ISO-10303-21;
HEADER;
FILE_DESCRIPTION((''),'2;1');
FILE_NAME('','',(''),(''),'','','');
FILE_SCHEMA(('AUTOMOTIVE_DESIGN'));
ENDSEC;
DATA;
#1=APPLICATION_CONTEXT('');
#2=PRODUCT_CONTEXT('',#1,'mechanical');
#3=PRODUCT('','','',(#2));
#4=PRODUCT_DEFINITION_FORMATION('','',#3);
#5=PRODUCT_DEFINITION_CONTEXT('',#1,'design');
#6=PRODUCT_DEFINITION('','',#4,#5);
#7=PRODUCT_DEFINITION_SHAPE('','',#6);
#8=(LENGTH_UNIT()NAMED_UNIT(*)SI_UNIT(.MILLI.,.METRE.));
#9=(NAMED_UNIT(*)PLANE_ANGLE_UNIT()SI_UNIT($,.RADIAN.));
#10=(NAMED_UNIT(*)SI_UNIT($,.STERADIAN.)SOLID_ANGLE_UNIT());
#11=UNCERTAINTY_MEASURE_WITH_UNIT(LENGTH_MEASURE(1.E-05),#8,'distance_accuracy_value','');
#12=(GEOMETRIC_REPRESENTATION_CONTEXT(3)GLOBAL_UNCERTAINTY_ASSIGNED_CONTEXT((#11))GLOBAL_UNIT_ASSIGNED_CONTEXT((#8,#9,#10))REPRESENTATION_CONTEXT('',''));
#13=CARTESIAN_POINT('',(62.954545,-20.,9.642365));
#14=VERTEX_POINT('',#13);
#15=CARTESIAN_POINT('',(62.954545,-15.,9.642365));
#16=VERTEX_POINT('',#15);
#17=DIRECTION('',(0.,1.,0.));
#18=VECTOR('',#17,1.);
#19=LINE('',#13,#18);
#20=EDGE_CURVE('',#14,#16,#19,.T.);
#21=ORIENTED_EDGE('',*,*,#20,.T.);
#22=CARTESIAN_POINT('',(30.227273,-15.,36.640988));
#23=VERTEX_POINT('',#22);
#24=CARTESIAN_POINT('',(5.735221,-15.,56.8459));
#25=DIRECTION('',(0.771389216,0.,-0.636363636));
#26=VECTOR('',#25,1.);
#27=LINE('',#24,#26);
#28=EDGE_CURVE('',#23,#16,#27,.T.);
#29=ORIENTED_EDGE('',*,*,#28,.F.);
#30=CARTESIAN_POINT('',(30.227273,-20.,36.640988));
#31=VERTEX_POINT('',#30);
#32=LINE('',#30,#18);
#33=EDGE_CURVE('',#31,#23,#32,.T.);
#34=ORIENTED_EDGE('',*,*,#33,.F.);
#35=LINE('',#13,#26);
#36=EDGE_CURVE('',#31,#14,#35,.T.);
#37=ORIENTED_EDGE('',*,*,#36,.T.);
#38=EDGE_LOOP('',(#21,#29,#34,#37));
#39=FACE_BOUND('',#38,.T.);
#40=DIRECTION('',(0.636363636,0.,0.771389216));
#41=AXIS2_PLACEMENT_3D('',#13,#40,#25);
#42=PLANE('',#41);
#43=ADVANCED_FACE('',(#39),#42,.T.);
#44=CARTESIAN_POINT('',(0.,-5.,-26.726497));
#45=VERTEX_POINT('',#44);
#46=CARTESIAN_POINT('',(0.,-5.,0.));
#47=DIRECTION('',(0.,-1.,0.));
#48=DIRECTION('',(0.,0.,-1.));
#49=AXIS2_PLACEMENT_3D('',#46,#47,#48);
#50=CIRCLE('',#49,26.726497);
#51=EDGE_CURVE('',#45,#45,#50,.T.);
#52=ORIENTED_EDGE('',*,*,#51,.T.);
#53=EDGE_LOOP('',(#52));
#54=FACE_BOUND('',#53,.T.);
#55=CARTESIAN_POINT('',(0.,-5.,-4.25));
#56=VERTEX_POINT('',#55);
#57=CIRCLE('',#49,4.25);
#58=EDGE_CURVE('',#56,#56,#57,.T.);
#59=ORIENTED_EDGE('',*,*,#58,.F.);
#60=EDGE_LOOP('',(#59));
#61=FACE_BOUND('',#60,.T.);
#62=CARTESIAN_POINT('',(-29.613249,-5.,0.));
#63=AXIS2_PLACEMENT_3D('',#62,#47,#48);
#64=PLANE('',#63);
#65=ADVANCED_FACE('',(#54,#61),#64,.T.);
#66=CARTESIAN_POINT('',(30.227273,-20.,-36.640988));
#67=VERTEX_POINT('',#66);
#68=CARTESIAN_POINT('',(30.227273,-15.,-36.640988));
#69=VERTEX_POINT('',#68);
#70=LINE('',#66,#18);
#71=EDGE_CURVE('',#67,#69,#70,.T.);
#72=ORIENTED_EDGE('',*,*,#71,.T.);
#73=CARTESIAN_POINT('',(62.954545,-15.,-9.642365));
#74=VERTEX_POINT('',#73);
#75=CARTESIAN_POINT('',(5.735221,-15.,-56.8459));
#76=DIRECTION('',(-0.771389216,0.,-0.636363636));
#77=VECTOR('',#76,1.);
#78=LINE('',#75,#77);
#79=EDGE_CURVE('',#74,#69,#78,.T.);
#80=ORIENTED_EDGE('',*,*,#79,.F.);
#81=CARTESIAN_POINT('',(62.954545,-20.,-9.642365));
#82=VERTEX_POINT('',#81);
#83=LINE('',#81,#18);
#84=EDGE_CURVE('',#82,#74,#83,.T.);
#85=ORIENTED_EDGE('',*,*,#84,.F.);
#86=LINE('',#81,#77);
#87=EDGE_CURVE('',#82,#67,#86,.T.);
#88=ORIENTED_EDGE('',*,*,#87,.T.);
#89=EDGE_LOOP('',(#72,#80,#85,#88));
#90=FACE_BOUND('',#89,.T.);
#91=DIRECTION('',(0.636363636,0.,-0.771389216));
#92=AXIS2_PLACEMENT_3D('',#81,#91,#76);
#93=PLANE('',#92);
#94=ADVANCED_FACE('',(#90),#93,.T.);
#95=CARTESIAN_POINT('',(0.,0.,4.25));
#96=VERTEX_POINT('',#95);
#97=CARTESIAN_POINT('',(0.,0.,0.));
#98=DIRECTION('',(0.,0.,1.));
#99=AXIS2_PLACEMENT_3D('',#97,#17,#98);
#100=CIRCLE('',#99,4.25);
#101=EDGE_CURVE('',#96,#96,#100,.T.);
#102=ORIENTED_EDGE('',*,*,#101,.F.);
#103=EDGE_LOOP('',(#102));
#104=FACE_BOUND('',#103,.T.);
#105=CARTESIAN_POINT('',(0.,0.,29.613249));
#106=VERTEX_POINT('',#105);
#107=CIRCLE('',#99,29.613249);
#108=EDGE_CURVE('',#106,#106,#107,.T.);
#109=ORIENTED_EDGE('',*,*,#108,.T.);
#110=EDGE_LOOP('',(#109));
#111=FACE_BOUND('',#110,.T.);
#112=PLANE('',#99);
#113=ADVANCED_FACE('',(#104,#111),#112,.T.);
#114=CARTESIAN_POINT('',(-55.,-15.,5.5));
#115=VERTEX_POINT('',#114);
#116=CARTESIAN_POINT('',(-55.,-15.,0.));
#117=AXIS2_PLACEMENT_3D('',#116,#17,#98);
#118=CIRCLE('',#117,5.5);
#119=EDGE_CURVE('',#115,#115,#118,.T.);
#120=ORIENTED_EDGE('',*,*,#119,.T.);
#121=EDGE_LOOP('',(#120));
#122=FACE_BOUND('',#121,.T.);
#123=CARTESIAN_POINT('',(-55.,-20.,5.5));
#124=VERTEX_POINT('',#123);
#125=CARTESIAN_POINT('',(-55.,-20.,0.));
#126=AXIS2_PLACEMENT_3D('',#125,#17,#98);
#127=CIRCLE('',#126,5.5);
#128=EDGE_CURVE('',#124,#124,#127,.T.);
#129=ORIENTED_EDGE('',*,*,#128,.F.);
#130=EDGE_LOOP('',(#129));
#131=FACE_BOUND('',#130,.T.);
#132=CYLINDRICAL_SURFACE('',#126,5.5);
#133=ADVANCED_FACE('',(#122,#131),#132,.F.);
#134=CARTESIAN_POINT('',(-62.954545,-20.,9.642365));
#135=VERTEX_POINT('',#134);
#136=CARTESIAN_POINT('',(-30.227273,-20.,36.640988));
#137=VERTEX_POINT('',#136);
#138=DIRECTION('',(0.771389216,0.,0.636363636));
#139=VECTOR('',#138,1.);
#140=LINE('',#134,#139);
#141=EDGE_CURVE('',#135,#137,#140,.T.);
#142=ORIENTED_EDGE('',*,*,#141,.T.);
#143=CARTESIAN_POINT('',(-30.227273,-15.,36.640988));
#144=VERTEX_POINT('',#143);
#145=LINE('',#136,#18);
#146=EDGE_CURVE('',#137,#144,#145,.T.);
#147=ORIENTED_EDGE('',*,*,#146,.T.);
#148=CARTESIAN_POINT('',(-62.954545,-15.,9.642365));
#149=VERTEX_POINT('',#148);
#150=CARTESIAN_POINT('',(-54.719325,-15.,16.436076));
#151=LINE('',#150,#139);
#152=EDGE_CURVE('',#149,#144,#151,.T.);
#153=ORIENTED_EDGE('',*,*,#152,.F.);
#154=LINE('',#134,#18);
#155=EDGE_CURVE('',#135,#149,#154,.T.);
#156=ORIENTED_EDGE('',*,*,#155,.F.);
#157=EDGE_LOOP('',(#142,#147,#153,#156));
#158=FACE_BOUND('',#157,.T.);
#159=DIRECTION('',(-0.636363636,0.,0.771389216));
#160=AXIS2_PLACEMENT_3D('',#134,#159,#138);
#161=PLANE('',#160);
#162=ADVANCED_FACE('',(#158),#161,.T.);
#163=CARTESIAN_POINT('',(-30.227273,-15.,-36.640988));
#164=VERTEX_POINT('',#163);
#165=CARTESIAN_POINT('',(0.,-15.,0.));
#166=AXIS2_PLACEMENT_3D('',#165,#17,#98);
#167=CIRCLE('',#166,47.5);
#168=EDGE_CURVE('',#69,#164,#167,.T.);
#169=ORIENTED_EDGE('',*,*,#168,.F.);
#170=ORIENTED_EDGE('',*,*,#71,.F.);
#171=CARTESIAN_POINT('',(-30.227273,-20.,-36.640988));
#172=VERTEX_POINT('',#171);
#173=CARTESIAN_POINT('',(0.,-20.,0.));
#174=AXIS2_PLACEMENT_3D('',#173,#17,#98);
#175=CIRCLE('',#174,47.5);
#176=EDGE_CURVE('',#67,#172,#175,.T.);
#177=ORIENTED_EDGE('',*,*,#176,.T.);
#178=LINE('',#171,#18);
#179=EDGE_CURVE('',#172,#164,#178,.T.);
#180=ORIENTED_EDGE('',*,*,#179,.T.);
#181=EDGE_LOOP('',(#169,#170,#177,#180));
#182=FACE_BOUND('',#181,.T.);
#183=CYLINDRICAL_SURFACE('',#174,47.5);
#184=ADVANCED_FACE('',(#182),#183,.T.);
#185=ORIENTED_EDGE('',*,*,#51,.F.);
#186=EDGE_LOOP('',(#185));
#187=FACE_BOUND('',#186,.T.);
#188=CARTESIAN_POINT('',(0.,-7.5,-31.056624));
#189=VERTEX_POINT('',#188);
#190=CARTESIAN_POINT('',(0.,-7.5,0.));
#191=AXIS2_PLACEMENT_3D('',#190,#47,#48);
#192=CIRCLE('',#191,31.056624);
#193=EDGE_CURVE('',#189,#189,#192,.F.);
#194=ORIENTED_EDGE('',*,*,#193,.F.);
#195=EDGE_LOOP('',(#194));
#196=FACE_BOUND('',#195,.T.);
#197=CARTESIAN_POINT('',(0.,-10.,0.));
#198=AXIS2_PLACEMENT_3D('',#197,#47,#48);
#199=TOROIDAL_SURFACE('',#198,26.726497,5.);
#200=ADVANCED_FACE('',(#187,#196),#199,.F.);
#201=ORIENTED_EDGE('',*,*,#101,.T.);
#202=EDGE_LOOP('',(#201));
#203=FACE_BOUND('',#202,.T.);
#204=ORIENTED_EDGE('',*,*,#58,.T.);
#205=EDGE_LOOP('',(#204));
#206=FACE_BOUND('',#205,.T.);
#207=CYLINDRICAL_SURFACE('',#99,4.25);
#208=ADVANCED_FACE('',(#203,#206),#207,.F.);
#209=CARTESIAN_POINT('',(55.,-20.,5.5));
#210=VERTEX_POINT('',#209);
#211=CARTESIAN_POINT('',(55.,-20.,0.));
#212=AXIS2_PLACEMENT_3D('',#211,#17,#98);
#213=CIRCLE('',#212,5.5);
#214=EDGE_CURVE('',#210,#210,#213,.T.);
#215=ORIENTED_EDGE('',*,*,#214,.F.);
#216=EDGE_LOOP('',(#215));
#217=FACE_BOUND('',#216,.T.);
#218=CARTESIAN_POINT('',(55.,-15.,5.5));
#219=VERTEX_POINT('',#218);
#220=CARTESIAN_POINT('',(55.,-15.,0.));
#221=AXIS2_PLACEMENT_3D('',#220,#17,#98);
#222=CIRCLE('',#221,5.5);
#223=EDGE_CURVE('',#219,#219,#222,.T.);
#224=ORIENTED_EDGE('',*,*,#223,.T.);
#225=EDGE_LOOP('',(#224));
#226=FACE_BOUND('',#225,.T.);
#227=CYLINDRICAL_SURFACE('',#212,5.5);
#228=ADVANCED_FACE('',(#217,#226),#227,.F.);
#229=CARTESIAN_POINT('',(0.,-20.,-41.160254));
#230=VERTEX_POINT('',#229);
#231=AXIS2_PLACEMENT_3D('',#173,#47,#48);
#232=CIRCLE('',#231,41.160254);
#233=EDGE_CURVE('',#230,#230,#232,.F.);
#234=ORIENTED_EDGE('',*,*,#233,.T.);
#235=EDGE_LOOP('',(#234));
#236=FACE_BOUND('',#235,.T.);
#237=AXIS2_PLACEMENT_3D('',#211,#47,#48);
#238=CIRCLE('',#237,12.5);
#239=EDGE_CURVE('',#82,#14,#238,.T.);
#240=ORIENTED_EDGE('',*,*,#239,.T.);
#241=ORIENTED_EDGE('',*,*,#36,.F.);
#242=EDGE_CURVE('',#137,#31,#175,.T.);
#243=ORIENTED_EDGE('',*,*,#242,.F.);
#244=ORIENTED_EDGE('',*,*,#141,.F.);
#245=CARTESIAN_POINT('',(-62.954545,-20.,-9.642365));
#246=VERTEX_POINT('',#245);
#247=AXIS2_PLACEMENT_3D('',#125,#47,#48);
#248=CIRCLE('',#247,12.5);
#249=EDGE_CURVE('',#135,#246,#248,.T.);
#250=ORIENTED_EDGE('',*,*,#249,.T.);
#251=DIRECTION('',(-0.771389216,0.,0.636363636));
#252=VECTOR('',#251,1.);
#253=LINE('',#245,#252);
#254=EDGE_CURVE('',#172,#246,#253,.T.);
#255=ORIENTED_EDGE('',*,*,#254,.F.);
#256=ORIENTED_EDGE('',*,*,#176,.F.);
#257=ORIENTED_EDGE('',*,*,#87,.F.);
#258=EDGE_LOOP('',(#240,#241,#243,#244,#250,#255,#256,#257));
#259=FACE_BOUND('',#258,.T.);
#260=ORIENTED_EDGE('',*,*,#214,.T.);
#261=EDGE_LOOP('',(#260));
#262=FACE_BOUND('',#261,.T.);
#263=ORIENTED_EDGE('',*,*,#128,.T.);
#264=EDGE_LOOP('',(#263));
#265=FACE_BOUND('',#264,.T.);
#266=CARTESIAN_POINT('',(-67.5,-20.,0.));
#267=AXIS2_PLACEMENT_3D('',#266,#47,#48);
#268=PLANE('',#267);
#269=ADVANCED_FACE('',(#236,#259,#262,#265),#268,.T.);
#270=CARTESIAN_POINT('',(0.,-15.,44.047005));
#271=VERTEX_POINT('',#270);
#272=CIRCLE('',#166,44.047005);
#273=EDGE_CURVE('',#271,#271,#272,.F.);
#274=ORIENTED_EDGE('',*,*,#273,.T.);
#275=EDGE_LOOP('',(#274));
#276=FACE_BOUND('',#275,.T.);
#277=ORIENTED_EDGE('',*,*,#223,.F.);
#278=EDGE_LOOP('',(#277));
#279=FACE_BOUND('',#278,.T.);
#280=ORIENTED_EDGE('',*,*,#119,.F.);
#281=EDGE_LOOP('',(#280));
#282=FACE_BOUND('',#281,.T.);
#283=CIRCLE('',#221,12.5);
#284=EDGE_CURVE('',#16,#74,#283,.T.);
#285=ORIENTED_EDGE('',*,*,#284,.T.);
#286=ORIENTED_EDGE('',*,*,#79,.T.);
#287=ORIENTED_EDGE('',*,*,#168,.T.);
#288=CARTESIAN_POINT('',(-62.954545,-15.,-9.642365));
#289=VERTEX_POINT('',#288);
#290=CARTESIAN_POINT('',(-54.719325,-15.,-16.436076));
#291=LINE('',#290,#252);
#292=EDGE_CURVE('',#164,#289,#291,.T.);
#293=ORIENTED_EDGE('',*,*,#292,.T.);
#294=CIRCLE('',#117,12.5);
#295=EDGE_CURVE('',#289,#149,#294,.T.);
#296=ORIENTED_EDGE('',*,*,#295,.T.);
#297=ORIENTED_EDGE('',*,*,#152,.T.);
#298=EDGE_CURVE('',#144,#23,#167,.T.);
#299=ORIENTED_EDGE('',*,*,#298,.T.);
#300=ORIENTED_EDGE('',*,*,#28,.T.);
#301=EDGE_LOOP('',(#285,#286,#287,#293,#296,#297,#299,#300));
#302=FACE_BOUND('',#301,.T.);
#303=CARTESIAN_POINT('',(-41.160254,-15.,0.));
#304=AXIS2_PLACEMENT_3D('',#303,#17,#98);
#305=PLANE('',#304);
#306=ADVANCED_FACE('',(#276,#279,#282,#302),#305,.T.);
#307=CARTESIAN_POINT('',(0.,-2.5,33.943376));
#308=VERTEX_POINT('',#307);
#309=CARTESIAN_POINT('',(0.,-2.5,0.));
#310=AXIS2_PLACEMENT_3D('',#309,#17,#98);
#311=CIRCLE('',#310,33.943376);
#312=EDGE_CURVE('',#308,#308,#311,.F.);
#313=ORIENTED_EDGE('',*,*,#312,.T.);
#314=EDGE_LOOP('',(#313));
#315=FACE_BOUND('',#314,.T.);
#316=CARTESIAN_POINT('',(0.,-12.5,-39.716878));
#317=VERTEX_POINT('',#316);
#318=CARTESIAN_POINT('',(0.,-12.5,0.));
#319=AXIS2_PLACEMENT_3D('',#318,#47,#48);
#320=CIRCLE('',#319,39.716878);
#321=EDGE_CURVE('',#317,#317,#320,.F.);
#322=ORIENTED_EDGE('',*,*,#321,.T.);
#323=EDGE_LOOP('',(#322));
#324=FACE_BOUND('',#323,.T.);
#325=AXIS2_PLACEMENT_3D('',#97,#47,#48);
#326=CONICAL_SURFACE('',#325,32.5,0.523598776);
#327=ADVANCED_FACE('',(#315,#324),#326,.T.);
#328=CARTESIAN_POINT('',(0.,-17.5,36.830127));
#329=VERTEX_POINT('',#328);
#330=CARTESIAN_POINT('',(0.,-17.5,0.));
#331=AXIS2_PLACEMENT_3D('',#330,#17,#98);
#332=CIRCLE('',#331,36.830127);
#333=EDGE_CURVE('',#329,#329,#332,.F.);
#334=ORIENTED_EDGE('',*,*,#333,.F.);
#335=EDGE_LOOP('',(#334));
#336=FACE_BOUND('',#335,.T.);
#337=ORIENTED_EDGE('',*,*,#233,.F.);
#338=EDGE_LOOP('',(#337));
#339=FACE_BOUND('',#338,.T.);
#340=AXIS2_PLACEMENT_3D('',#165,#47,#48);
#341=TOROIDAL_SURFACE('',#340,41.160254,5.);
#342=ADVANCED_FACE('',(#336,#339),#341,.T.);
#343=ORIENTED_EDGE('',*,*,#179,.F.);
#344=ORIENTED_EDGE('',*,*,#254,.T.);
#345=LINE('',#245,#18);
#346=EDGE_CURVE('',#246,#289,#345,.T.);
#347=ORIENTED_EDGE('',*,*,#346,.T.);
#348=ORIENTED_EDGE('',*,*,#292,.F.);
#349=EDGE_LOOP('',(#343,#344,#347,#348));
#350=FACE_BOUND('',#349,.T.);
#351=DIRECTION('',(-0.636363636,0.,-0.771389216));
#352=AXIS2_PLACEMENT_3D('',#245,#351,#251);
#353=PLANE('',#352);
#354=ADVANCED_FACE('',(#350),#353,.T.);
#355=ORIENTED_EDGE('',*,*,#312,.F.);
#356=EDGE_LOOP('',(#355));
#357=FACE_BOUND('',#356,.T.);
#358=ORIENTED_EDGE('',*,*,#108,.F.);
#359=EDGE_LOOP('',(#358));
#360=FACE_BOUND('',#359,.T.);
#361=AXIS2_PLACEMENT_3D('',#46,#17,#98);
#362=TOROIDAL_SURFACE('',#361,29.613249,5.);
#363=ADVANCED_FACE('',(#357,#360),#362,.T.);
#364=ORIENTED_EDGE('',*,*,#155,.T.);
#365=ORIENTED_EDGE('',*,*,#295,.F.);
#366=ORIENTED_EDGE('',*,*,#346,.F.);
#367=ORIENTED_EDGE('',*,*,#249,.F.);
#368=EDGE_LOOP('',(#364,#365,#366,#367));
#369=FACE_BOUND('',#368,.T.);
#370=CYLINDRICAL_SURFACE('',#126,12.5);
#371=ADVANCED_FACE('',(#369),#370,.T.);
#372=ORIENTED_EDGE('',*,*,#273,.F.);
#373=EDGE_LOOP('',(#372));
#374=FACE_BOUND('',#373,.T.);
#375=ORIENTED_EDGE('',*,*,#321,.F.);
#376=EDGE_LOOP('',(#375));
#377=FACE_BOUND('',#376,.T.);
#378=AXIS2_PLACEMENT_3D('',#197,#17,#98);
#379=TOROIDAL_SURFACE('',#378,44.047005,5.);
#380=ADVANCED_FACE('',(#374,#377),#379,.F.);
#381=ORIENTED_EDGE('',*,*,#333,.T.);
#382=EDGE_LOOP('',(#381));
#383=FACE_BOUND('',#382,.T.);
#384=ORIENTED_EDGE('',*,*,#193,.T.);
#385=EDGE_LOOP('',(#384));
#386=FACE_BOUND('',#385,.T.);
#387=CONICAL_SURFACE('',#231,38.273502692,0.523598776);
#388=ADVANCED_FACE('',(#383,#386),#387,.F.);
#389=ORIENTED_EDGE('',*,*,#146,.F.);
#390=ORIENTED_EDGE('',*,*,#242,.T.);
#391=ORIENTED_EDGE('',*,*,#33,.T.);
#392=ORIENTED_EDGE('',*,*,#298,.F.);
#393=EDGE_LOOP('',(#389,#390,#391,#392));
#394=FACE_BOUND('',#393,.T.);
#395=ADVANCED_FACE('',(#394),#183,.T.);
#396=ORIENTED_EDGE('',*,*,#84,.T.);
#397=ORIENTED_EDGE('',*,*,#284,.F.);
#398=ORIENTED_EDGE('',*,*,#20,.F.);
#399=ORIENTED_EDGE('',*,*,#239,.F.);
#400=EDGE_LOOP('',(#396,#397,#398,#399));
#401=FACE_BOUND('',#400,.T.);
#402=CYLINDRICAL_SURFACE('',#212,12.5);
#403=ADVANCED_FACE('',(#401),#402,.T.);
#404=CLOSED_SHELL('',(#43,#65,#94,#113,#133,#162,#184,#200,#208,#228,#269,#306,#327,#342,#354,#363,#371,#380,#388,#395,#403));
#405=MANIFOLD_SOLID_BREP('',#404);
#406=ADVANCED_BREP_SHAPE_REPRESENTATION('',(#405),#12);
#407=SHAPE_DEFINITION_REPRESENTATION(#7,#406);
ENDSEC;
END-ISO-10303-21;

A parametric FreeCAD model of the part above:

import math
import FreeCAD as App
import Part
import Sketcher

V = App.Vector
Q = App.Units.Quantity


def edges_at(feature, points):
    """Names of the edges that pass closest to the given points."""
    edges = feature.Shape.Edges
    near = lambda p: min(range(len(edges)), key=lambda i: edges[i].distToShape(Part.Vertex(*p))[0])
    return sorted({f"Edge{near(p) + 1}" for p in points})


def add_polygon(sketch, points):
    """Adds a closed chain of lines whose ends are joined by coincident constraints."""
    first, n = sketch.GeometryCount, len(points)
    for a, b in zip(points, points[1:] + points[:1]):
        sketch.addGeometry(Part.LineSegment(App.Vector(*a, 0), App.Vector(*b, 0)), False)
    for i in range(n):
        sketch.addConstraint(Sketcher.Constraint("Coincident", first + i, 2, first + (i + 1) % n, 1))

doc = App.newDocument("Part")
params = doc.addObject("Spreadsheet::Sheet", "Params")
for row, (alias, value) in enumerate([
    ("sketch1_height", "5 mm"),
    ("sketch1_width", "32.5 mm"),
    ("revolution_angle", "360 deg"),
    ("fillet_radius", "5 mm"),
    ("sketch2_diameter", "11 mm"),
    ("sketch3_diameter", "8.5 mm"),
    ("hole_diameter", "8.5 mm"),
    ("hole_depth", "17.5 mm"),
    ("sketch4_radius", "12.5 mm"),
    ("sketch4_radius2", "47.5 mm"),
], start=1):
    params.set(f"A{row}", alias)
    params.set(f"B{row}", "=" + value)
    params.setAlias(f"B{row}", alias)

body = doc.addObject("PartDesign::Body", "Body")

sketch1 = body.newObject("Sketcher::SketchObject", "Sketch")
sketch1.AttachmentSupport = (doc.getObject("XY_Plane"), [""])
sketch1.MapMode = "FlatFace"
add_polygon(sketch1, [(0, 0), (-32, 0), (-41, -15), (-68, -15), (-68, -20), (-38, -20), (-30, -5), (0, -5)])
sketch1.addConstraint(Sketcher.Constraint("Horizontal", 0))
sketch1.addConstraint(Sketcher.Constraint("Horizontal", 2))
sketch1.addConstraint(Sketcher.Constraint("Vertical", 3))
sketch1.addConstraint(Sketcher.Constraint("Horizontal", 4))
sketch1.addConstraint(Sketcher.Constraint("Horizontal", 6))
sketch1.addConstraint(Sketcher.Constraint("Vertical", 7))
sketch1.addConstraint(Sketcher.Constraint("Coincident", 7, 2, -1, 1))
sketch1.addConstraint(Sketcher.Constraint("Parallel", 1, 5))
sketch1.addConstraint(Sketcher.Constraint("Equal", 3, 7))
sketch1.addConstraint(Sketcher.Constraint("DistanceY", 3, 2, 3, 1, 5.0))
sketch1.addConstraint(Sketcher.Constraint("Angle", 1, Q("-120 deg")))
sketch1.addConstraint(Sketcher.Constraint("DistanceX", 0, 2, 0, 1, 32.5))
sketch1.addConstraint(Sketcher.Constraint("DistanceY", 1, 2, -1, 1, 15.0))
sketch1.addConstraint(Sketcher.Constraint("DistanceX", 2, 2, 0, 2, 35.0))
sketch1.addConstraint(Sketcher.Constraint("DistanceX", 6, 1, 6, 2, 29.613249))
sketch1.setExpression("Constraints[17]", "Params.sketch1_height")
sketch1.setExpression("Constraints[19]", "Params.sketch1_width")
revolution = body.newObject("PartDesign::Revolution", "Revolution")
revolution.Profile = sketch1
revolution.ReferenceAxis = (sketch1, ["V_Axis"])
revolution.setExpression("Angle", "Params.revolution_angle")
doc.recompute()

fillet = body.newObject("PartDesign::Fillet", "Fillet")
fillet.Base = (revolution, edges_at(revolution, [
    (0, -5, -29.613),
    (0, -20, -38.274),
    (0, -15, -41.16),
    (0, 0, -32.5),
]))
fillet.setExpression("Radius", "Params.fillet_radius")

sketch2 = body.newObject("Sketcher::SketchObject", "Sketch001")
sketch2.AttachmentSupport = (doc.getObject("XZ_Plane"), [""])
sketch2.MapMode = "FlatFace"
sketch2.addGeometry(Part.Circle(V(-55, 0, 0), V(0, 0, 1), 6), False)
sketch2.addGeometry(Part.Circle(V(55, 0, 0), V(0, 0, 1), 6), False)
sketch2.addConstraint(Sketcher.Constraint("Equal", 0, 1))
sketch2.addConstraint(Sketcher.Constraint("Symmetric", 0, 3, 1, 3, -1, 1))
sketch2.addConstraint(Sketcher.Constraint("PointOnObject", 0, 3, -1))
sketch2.addConstraint(Sketcher.Constraint("Diameter", 0, 11.0))
sketch2.addConstraint(Sketcher.Constraint("DistanceX", 0, 3, -1, 1, 55.0))
sketch2.setExpression("Constraints[3]", "Params.sketch2_diameter")
pocket1 = body.newObject("PartDesign::Pocket", "Pocket")
pocket1.Profile = sketch2
pocket1.Type = "ThroughAll"
pocket1.Reversed = True

sketch3 = body.newObject("Sketcher::SketchObject", "Sketch002")
sketch3.AttachmentSupport = (doc.getObject("XZ_Plane"), [""])
sketch3.MapMode = "FlatFace"
sketch3.addGeometry(Part.Circle(V(0, 0, 0), V(0, 0, 1), 4.2), False)
sketch3.addConstraint(Sketcher.Constraint("Coincident", 0, 3, -1, 1))
sketch3.addConstraint(Sketcher.Constraint("Diameter", 0, 8.5))
sketch3.setExpression("Constraints[1]", "Params.sketch3_diameter")
doc.recompute()
hole = body.newObject("PartDesign::Hole", "Hole")
hole.Profile = sketch3
hole.ThreadType = "None"
hole.setExpression("Diameter", "Params.hole_diameter")
hole.DepthType = "Dimension"
hole.setExpression("Depth", "Params.hole_depth")
hole.DrillPoint = "Angled"
hole.DrillPointAngle = 118
hole.Reversed = True

sketch4 = body.newObject("Sketcher::SketchObject", "Sketch003")
sketch4.AttachmentSupport = (doc.getObject("XZ_Plane"), [""])
sketch4.MapMode = "FlatFace"
sketch4.AttachmentOffset = App.Placement(V(0, 0, 15), App.Rotation())
add_polygon(sketch4, [(-88, -88), (-88, 88), (88, 88), (88, -88)])
sketch4.addGeometry(Part.LineSegment(V(30, -37, 0), V(63, -10, 0)), False)
sketch4.addGeometry(Part.ArcOfCircle(Part.Circle(V(55, 0, 0), V(0, 0, 1), 13), math.radians(-50), math.radians(50)), False)
sketch4.addGeometry(Part.LineSegment(V(63, 10, 0), V(30, 37, 0)), False)
sketch4.addGeometry(Part.ArcOfCircle(Part.Circle(V(0, 0, 0), V(0, 0, 1), 47), math.radians(50), math.radians(130)), False)
sketch4.addGeometry(Part.LineSegment(V(-30, 37, 0), V(-63, 10, 0)), False)
sketch4.addGeometry(Part.ArcOfCircle(Part.Circle(V(-55, 0, 0), V(0, 0, 1), 13), math.radians(130), math.radians(230)), False)
sketch4.addGeometry(Part.LineSegment(V(-63, -10, 0), V(-30, -37, 0)), False)
sketch4.addGeometry(Part.ArcOfCircle(Part.Circle(V(0, 0, 0), V(0, 0, 1), 47), math.radians(-130), math.radians(-50)), False)
sketch4.addConstraint(Sketcher.Constraint("Tangent", 4, 2, 5, 1))
sketch4.addConstraint(Sketcher.Constraint("Tangent", 5, 2, 6, 1))
sketch4.addConstraint(Sketcher.Constraint("Tangent", 6, 2, 7, 1))
sketch4.addConstraint(Sketcher.Constraint("Tangent", 7, 2, 8, 1))
sketch4.addConstraint(Sketcher.Constraint("Tangent", 8, 2, 9, 1))
sketch4.addConstraint(Sketcher.Constraint("Tangent", 9, 2, 10, 1))
sketch4.addConstraint(Sketcher.Constraint("Tangent", 10, 2, 11, 1))
sketch4.addConstraint(Sketcher.Constraint("Tangent", 11, 2, 4, 1))
sketch4.addConstraint(Sketcher.Constraint("Vertical", 0))
sketch4.addConstraint(Sketcher.Constraint("Horizontal", 1))
sketch4.addConstraint(Sketcher.Constraint("Vertical", 2))
sketch4.addConstraint(Sketcher.Constraint("Horizontal", 3))
sketch4.addConstraint(Sketcher.Constraint("Coincident", 7, 3, -1, 1))
sketch4.addConstraint(Sketcher.Constraint("Coincident", 11, 3, -1, 1))
sketch4.addConstraint(Sketcher.Constraint("Equal", 5, 9))
sketch4.addConstraint(Sketcher.Constraint("Equal", 7, 11))
sketch4.addConstraint(Sketcher.Constraint("Symmetric", 5, 3, 9, 3, -1, 1))
sketch4.addConstraint(Sketcher.Constraint("Symmetric", 0, 2, 2, 2, -1, 1))
sketch4.addConstraint(Sketcher.Constraint("PointOnObject", 5, 3, -1))
sketch4.addConstraint(Sketcher.Constraint("Equal", 3, 0))
sketch4.addConstraint(Sketcher.Constraint("Radius", 5, 12.5))
sketch4.addConstraint(Sketcher.Constraint("Radius", 7, 47.5))
sketch4.addConstraint(Sketcher.Constraint("DistanceX", -1, 1, 5, 3, 55.0))
sketch4.addConstraint(Sketcher.Constraint("DistanceX", 1, 1, 1, 2, 175.392))
sketch4.setExpression("Constraints[24]", "Params.sketch4_radius")
sketch4.setExpression("Constraints[25]", "Params.sketch4_radius2")
pocket2 = body.newObject("PartDesign::Pocket", "Pocket001")
pocket2.Profile = sketch4
pocket2.Type = "ThroughAll"
pocket2.Midplane = True

doc.recompute()
